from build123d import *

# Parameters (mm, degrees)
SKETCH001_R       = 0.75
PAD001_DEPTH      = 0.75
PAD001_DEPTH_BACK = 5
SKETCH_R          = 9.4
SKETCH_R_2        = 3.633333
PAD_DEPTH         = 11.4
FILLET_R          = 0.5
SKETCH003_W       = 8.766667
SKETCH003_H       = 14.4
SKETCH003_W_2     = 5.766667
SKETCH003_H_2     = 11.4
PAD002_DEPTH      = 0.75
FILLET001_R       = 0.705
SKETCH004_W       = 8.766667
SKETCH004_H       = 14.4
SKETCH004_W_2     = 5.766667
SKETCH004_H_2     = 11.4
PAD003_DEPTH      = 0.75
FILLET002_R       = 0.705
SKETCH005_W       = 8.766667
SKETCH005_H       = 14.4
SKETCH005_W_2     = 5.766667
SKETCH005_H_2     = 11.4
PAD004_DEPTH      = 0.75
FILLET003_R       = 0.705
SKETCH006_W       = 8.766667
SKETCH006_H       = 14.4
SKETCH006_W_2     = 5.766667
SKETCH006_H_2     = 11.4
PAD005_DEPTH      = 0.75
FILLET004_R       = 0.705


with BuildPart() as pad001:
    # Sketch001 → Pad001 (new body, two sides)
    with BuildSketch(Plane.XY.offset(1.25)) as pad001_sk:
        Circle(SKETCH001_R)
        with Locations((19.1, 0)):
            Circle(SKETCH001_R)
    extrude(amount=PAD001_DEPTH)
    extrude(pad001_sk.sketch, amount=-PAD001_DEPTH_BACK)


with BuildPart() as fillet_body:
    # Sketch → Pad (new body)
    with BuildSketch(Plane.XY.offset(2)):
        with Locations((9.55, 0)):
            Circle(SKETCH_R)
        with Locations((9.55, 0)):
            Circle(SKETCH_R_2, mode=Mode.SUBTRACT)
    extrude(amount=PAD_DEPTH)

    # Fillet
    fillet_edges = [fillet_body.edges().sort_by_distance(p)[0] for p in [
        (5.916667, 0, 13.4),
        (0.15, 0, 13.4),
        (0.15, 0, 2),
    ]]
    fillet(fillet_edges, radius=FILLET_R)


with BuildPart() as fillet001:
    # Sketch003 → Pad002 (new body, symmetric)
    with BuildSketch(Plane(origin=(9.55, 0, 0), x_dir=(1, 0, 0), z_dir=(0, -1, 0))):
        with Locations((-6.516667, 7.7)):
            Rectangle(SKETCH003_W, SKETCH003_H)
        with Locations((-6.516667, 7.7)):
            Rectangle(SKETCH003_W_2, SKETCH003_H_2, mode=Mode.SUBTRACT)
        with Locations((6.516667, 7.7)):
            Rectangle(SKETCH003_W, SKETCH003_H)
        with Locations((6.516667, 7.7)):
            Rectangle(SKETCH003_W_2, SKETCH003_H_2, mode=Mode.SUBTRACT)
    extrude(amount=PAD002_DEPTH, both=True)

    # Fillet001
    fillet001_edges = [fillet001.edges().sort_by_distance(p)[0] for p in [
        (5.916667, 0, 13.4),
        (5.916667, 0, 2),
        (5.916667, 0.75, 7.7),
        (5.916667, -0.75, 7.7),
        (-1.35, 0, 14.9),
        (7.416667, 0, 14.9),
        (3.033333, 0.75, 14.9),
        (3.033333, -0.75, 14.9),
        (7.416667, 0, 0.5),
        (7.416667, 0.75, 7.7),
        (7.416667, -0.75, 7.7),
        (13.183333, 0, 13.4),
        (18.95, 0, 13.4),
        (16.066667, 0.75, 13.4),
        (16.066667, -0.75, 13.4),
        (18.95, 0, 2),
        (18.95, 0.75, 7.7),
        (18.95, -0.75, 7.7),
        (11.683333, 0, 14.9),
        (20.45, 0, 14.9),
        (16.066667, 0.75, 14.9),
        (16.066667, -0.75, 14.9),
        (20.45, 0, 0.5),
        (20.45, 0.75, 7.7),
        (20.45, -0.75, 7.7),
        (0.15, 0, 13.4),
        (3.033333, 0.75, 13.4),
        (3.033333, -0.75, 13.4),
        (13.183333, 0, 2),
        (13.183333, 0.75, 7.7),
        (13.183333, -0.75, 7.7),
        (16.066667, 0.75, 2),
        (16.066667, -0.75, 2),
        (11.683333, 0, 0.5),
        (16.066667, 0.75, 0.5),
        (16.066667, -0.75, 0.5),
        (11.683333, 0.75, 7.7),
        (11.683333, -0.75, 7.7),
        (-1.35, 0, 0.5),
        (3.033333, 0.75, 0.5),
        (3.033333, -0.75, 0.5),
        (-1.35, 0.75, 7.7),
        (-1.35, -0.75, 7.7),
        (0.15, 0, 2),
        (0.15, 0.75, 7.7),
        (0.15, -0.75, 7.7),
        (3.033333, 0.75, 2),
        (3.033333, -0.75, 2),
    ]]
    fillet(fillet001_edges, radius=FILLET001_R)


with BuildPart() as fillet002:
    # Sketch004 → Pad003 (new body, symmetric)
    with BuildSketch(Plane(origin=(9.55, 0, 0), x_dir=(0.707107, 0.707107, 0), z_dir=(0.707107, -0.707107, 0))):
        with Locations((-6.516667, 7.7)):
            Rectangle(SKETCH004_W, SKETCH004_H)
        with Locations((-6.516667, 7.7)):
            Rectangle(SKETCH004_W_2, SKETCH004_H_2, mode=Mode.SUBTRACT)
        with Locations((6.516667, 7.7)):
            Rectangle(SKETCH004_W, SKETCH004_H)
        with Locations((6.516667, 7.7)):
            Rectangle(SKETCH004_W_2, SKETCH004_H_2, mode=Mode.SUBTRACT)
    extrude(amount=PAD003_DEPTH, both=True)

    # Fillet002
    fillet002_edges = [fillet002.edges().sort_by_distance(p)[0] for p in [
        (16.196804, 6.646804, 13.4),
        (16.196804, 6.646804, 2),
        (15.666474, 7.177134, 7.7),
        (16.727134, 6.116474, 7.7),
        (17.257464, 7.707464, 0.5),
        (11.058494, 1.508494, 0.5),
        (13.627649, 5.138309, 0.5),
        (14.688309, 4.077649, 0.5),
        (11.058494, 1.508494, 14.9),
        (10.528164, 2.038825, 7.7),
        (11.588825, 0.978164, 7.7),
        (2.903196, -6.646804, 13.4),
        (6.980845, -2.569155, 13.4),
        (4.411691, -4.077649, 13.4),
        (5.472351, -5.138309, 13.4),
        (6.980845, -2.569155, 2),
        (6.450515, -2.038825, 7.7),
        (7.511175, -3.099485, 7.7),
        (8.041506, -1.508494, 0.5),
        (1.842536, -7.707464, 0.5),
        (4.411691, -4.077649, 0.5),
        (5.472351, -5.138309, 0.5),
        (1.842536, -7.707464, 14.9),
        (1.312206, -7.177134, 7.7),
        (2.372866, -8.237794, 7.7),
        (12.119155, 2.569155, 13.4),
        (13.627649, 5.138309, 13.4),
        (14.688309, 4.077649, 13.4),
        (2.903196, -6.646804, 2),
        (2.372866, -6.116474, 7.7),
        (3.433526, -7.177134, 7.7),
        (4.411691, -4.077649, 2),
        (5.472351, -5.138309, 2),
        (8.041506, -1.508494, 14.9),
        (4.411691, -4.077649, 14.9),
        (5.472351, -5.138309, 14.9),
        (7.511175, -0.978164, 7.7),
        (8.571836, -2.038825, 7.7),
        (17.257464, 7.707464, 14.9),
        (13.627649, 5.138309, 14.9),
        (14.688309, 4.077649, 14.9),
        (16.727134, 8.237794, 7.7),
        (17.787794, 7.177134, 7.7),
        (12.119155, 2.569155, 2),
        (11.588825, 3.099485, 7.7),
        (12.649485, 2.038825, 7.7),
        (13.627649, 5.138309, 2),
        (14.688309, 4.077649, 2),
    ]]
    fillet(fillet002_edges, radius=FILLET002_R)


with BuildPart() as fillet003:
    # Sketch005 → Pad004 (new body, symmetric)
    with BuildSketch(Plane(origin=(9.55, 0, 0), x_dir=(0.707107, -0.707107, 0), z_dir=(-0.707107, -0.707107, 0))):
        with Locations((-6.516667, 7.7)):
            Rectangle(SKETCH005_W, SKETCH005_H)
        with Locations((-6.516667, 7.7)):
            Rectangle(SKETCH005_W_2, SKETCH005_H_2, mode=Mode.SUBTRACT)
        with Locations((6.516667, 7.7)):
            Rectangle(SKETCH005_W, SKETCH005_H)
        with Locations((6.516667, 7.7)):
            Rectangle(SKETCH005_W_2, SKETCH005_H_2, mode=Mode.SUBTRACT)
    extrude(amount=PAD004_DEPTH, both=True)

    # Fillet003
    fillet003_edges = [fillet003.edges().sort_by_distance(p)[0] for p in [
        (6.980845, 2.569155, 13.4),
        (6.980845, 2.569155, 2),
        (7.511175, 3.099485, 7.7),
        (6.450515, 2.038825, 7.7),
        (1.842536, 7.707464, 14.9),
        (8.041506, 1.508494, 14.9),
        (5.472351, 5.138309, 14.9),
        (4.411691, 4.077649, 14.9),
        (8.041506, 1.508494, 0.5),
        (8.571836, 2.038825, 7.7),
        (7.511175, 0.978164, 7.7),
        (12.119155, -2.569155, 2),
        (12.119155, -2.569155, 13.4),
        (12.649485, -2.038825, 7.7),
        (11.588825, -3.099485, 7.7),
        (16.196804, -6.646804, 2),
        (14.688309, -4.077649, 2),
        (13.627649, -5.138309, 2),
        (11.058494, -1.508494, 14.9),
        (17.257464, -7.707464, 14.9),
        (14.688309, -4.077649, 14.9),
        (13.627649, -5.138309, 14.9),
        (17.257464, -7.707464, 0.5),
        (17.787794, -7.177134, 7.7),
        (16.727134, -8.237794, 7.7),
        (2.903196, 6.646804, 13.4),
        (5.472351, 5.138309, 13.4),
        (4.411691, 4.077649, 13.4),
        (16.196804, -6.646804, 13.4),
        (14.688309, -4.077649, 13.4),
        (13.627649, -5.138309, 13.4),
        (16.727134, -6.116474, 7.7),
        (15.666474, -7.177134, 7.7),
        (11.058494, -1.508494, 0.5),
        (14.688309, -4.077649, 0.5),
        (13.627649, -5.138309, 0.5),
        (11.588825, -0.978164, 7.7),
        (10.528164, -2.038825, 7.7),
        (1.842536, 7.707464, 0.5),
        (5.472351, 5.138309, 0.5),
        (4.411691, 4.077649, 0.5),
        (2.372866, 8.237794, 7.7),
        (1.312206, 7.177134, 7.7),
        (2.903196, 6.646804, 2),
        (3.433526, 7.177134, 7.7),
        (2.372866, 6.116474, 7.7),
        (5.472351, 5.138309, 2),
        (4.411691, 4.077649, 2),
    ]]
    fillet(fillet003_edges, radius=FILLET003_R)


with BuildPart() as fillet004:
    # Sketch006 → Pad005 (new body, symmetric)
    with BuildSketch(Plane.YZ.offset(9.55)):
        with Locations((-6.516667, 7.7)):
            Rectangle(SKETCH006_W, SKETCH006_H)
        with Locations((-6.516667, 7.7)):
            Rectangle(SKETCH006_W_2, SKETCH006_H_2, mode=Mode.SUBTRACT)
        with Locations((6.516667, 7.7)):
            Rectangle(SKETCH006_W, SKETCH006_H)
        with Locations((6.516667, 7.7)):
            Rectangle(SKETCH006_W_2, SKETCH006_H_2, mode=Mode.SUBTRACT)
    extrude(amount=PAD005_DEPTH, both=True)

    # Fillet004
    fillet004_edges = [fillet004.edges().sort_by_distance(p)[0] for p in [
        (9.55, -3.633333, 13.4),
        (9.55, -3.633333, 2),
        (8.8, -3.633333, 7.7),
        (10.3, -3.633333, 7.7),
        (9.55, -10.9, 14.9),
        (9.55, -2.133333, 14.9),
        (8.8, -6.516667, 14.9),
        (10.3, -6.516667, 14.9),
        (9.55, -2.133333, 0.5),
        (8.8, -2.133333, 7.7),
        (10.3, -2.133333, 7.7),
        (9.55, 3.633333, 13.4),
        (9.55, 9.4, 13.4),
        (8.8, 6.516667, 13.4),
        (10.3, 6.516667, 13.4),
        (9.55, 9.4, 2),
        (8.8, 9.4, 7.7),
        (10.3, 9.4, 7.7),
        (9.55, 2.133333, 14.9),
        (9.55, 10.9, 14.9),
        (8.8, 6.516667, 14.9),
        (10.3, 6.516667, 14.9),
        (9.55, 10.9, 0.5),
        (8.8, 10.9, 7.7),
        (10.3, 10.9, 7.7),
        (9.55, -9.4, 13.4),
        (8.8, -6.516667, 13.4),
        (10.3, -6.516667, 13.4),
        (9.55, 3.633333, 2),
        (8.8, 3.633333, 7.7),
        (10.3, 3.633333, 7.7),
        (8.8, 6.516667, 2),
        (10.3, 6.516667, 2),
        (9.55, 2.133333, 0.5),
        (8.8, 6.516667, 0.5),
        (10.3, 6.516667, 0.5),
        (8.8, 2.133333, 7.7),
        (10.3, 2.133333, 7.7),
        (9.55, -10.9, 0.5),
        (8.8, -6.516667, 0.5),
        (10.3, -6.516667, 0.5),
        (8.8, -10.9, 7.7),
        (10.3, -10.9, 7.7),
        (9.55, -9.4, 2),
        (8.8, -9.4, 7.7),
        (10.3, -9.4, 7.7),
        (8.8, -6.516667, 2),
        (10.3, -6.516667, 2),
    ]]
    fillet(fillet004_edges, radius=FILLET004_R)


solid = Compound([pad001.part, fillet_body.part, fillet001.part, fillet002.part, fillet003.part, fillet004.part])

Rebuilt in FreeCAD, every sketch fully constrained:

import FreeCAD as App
import Part
import Sketcher

V = App.Vector
Q = App.Units.Quantity


def edges_at(feature, points):
    """Names of the edges that pass closest to the given points."""
    edges = feature.Shape.Edges
    near = lambda p: min(range(len(edges)), key=lambda i: edges[i].distToShape(Part.Vertex(*p))[0])
    return sorted({f"Edge{near(p) + 1}" for p in points})


def add_polygon(sketch, points):
    """Adds a closed chain of lines whose ends are joined by coincident constraints."""
    first, n = sketch.GeometryCount, len(points)
    for a, b in zip(points, points[1:] + points[:1]):
        sketch.addGeometry(Part.LineSegment(App.Vector(*a, 0), App.Vector(*b, 0)), False)
    for i in range(n):
        sketch.addConstraint(Sketcher.Constraint("Coincident", first + i, 2, first + (i + 1) % n, 1))

doc = App.newDocument("Part")
body = doc.addObject("PartDesign::Body", "Body")
body.AllowCompound = True

sketch1 = doc.addObject("Sketcher::SketchObject", "Sketch")
body.addObject(sketch1)
sketch1.AttachmentSupport = (doc.XY_Plane, [""])
sketch1.MapMode = "FlatFace"
sketch1.AttachmentOffset = App.Placement(V(0, 0, 1.25), App.Rotation())
sketch1.addGeometry(Part.Circle(V(0, 0, 0), V(0, 0, 1), 0.8), False)
sketch1.addGeometry(Part.Circle(V(19.1, 0, 0), V(0, 0, 1), 0.8), False)
sketch1.addConstraint(Sketcher.Constraint("Coincident", 0, 3, -1, 1))
sketch1.addConstraint(Sketcher.Constraint("Equal", 0, 1))
sketch1.addConstraint(Sketcher.Constraint("PointOnObject", 1, 3, -1))
sketch1.addConstraint(Sketcher.Constraint("Diameter", 0, Q("1.5 mm")))
sketch1.addConstraint(Sketcher.Constraint("DistanceX", -1, 1, 1, 3, Q("19.1 mm")))
pad1 = doc.addObject("PartDesign::Pad", "Pad")
body.addObject(pad1)
pad1.Profile = sketch1
pad1.Type = "TwoLengths"
pad1.Length = 0.75
pad1.Length2 = 5
body2 = doc.addObject("PartDesign::Body", "Body001")

sketch2 = doc.addObject("Sketcher::SketchObject", "Sketch001")
body2.addObject(sketch2)
sketch2.AttachmentSupport = (doc.getObject("XY_Plane001"), [""])
sketch2.MapMode = "FlatFace"
sketch2.AttachmentOffset = App.Placement(V(0, 0, 2), App.Rotation())
sketch2.addGeometry(Part.Circle(V(9.6, 0, 0), V(0, 0, 1), 9.4), False)
sketch2.addGeometry(Part.Circle(V(9.6, 0, 0), V(0, 0, 1), 3.6), False)
sketch2.addConstraint(Sketcher.Constraint("Coincident", 1, 3, 0, 3))
sketch2.addConstraint(Sketcher.Constraint("PointOnObject", 0, 3, -1))
sketch2.addConstraint(Sketcher.Constraint("Diameter", 0, Q("18.8 mm")))
sketch2.addConstraint(Sketcher.Constraint("DistanceX", -1, 1, 0, 3, Q("9.55 mm")))
sketch2.addConstraint(Sketcher.Constraint("Diameter", 1, Q("7.266666 mm")))
pad2 = doc.addObject("PartDesign::Pad", "Pad001")
body2.addObject(pad2)
pad2.Profile = sketch2
pad2.Length = 11.4
doc.recompute()

fillet = doc.addObject("PartDesign::Fillet", "Fillet")
body2.addObject(fillet)
fillet.Base = (pad2, edges_at(pad2, [(5.917, 0, 13.4), (0.15, 0, 13.4), (0.15, 0, 2)]))
fillet.Radius = 0.5
body3 = doc.addObject("PartDesign::Body", "Body002")
body3.AllowCompound = True

sketch3 = doc.addObject("Sketcher::SketchObject", "Sketch002")
body3.addObject(sketch3)
sketch3.AttachmentSupport = (doc.getObject("XZ_Plane002"), [""])
sketch3.MapMode = "FlatFace"
add_polygon(sketch3, [(-1, 15), (-1, 0), (7, 0), (7, 15)])
add_polygon(sketch3, [(6, 2), (0, 2), (0, 13), (6, 13)])
add_polygon(sketch3, [(12, 15), (12, 0), (20, 0), (20, 15)])
add_polygon(sketch3, [(19, 2), (13, 2), (13, 13), (19, 13)])
sketch3.addConstraint(Sketcher.Constraint("Vertical", 0))
sketch3.addConstraint(Sketcher.Constraint("Horizontal", 1))
sketch3.addConstraint(Sketcher.Constraint("Vertical", 2))
sketch3.addConstraint(Sketcher.Constraint("Horizontal", 3))
sketch3.addConstraint(Sketcher.Constraint("Horizontal", 4))
sketch3.addConstraint(Sketcher.Constraint("Vertical", 5))
sketch3.addConstraint(Sketcher.Constraint("Horizontal", 6))
sketch3.addConstraint(Sketcher.Constraint("Vertical", 7))
sketch3.addConstraint(Sketcher.Constraint("Vertical", 8))
sketch3.addConstraint(Sketcher.Constraint("Horizontal", 9))
sketch3.addConstraint(Sketcher.Constraint("Vertical", 10))
sketch3.addConstraint(Sketcher.Constraint("Horizontal", 11))
sketch3.addConstraint(Sketcher.Constraint("Horizontal", 12))
sketch3.addConstraint(Sketcher.Constraint("Vertical", 13))
sketch3.addConstraint(Sketcher.Constraint("Horizontal", 14))
sketch3.addConstraint(Sketcher.Constraint("Vertical", 15))
sketch3.addConstraint(Sketcher.Constraint("Horizontal", 1, 2, 8, 2))
sketch3.addConstraint(Sketcher.Constraint("Horizontal", 3, 2, 10, 2))
sketch3.addConstraint(Sketcher.Constraint("Horizontal", 7, 2, 12, 2))
sketch3.addConstraint(Sketcher.Constraint("Horizontal", 6, 2, 13, 2))
sketch3.addConstraint(Sketcher.Constraint("Equal", 3, 9))
sketch3.addConstraint(Sketcher.Constraint("Equal", 6, 12))
sketch3.addConstraint(Sketcher.Constraint("DistanceY", 0, 2, 0, 1, Q("14.4 mm")))
sketch3.addConstraint(Sketcher.Constraint("DistanceY", 5, 1, 5, 2, Q("11.4 mm")))
sketch3.addConstraint(Sketcher.Constraint("DistanceY", -1, 1, 4, 2, Q("2 mm")))
sketch3.addConstraint(Sketcher.Constraint("DistanceY", -1, 1, 0, 2, Q("0.5 mm")))
sketch3.addConstraint(Sketcher.Constraint("DistanceX", 0, 2, 4, 2, Q("1.5 mm")))
sketch3.addConstraint(Sketcher.Constraint("DistanceX", 6, 2, 2, 2, Q("1.5 mm")))
sketch3.addConstraint(Sketcher.Constraint("DistanceX", 8, 2, 12, 2, Q("1.5 mm")))
sketch3.addConstraint(Sketcher.Constraint("DistanceX", 0, 2, -1, 1, Q("1.35 mm")))
sketch3.addConstraint(Sketcher.Constraint("DistanceX", -1, 1, 9, 2, Q("20.450001 mm")))
sketch3.addConstraint(Sketcher.Constraint("DistanceX", 1, 1, 1, 2, Q("8.766667 mm")))
pad3 = doc.addObject("PartDesign::Pad", "Pad002")
body3.addObject(pad3)
pad3.Profile = sketch3
pad3.Length = 1.5
pad3.Midplane = True
doc.recompute()

fillet2 = doc.addObject("PartDesign::Fillet", "Fillet001")
body3.addObject(fillet2)
fillet2.Base = (pad3, ["Edge1"])
fillet2.UseAllEdges = True
fillet2.Radius = 0.705
body4 = doc.addObject("PartDesign::Body", "Body003")
body4.AllowCompound = True

sketch4 = doc.addObject("Sketcher::SketchObject", "Sketch003")
body4.addObject(sketch4)
sketch4.Placement = App.Placement(V(9.55, 0, 0), App.Rotation(V(0.707106781, 0.707106781, 0), V(0, 0, 0.999999999), V(0.707106781, -0.707106781, 0), "ZXY"))
add_polygon(sketch4, [(-11, 15), (-11, 0), (-2, 0), (-2, 15)])
add_polygon(sketch4, [(-4, 2), (-9, 2), (-9, 13), (-4, 13)])
add_polygon(sketch4, [(2, 15), (2, 0), (11, 0), (11, 15)])
add_polygon(sketch4, [(9, 2), (4, 2), (4, 13), (9, 13)])
sketch4.addConstraint(Sketcher.Constraint("Vertical", 0))
sketch4.addConstraint(Sketcher.Constraint("Horizontal", 1))
sketch4.addConstraint(Sketcher.Constraint("Vertical", 2))
sketch4.addConstraint(Sketcher.Constraint("Horizontal", 3))
sketch4.addConstraint(Sketcher.Constraint("Horizontal", 4))
sketch4.addConstraint(Sketcher.Constraint("Vertical", 5))
sketch4.addConstraint(Sketcher.Constraint("Horizontal", 6))
sketch4.addConstraint(Sketcher.Constraint("Vertical", 7))
sketch4.addConstraint(Sketcher.Constraint("Vertical", 8))
sketch4.addConstraint(Sketcher.Constraint("Horizontal", 9))
sketch4.addConstraint(Sketcher.Constraint("Vertical", 10))
sketch4.addConstraint(Sketcher.Constraint("Horizontal", 11))
sketch4.addConstraint(Sketcher.Constraint("Horizontal", 12))
sketch4.addConstraint(Sketcher.Constraint("Vertical", 13))
sketch4.addConstraint(Sketcher.Constraint("Horizontal", 14))
sketch4.addConstraint(Sketcher.Constraint("Vertical", 15))
sketch4.addConstraint(Sketcher.Constraint("Symmetric", 1, 2, 8, 2, -2))
sketch4.addConstraint(Sketcher.Constraint("Symmetric", 3, 2, 10, 2, -2))
sketch4.addConstraint(Sketcher.Constraint("Symmetric", 7, 2, 12, 2, -2))
sketch4.addConstraint(Sketcher.Constraint("Symmetric", 5, 2, 14, 2, -2))
sketch4.addConstraint(Sketcher.Constraint("DistanceY", 0, 2, 0, 1, Q("14.4 mm")))
sketch4.addConstraint(Sketcher.Constraint("DistanceY", 5, 1, 5, 2, Q("11.4 mm")))
sketch4.addConstraint(Sketcher.Constraint("DistanceY", -1, 1, 4, 2, Q("2 mm")))
sketch4.addConstraint(Sketcher.Constraint("DistanceX", 0, 2, -1, 1, Q("10.9 mm")))
sketch4.addConstraint(Sketcher.Constraint("DistanceY", -1, 1, 0, 2, Q("0.5 mm")))
sketch4.addConstraint(Sketcher.Constraint("DistanceX", 4, 2, -1, 1, Q("9.4 mm")))
sketch4.addConstraint(Sketcher.Constraint("DistanceX", 6, 2, 2, 2, Q("1.5 mm")))
sketch4.addConstraint(Sketcher.Constraint("DistanceX", 1, 1, 1, 2, Q("8.766667 mm")))
pad4 = doc.addObject("PartDesign::Pad", "Pad003")
body4.addObject(pad4)
pad4.Profile = sketch4
pad4.Length = 1.5
pad4.Midplane = True
doc.recompute()

fillet3 = doc.addObject("PartDesign::Fillet", "Fillet002")
body4.addObject(fillet3)
fillet3.Base = (pad4, ["Edge1"])
fillet3.UseAllEdges = True
fillet3.Radius = 0.705
body5 = doc.addObject("PartDesign::Body", "Body004")
body5.AllowCompound = True

sketch5 = doc.addObject("Sketcher::SketchObject", "Sketch004")
body5.addObject(sketch5)
sketch5.Placement = App.Placement(V(9.55, 0, 0), App.Rotation(V(0.707106781, -0.707106781, 0), V(0, 0, 0.999999999), V(-0.707106781, -0.707106781, 0), "ZXY"))
add_polygon(sketch5, [(-11, 15), (-11, 0), (-2, 0), (-2, 15)])
add_polygon(sketch5, [(-4, 2), (-9, 2), (-9, 13), (-4, 13)])
add_polygon(sketch5, [(2, 15), (2, 0), (11, 0), (11, 15)])
add_polygon(sketch5, [(9, 2), (4, 2), (4, 13), (9, 13)])
sketch5.addConstraint(Sketcher.Constraint("Vertical", 0))
sketch5.addConstraint(Sketcher.Constraint("Horizontal", 1))
sketch5.addConstraint(Sketcher.Constraint("Vertical", 2))
sketch5.addConstraint(Sketcher.Constraint("Horizontal", 3))
sketch5.addConstraint(Sketcher.Constraint("Horizontal", 4))
sketch5.addConstraint(Sketcher.Constraint("Vertical", 5))
sketch5.addConstraint(Sketcher.Constraint("Horizontal", 6))
sketch5.addConstraint(Sketcher.Constraint("Vertical", 7))
sketch5.addConstraint(Sketcher.Constraint("Vertical", 8))
sketch5.addConstraint(Sketcher.Constraint("Horizontal", 9))
sketch5.addConstraint(Sketcher.Constraint("Vertical", 10))
sketch5.addConstraint(Sketcher.Constraint("Horizontal", 11))
sketch5.addConstraint(Sketcher.Constraint("Horizontal", 12))
sketch5.addConstraint(Sketcher.Constraint("Vertical", 13))
sketch5.addConstraint(Sketcher.Constraint("Horizontal", 14))
sketch5.addConstraint(Sketcher.Constraint("Vertical", 15))
sketch5.addConstraint(Sketcher.Constraint("Symmetric", 1, 2, 8, 2, -2))
sketch5.addConstraint(Sketcher.Constraint("Symmetric", 3, 2, 10, 2, -2))
sketch5.addConstraint(Sketcher.Constraint("Symmetric", 7, 2, 12, 2, -2))
sketch5.addConstraint(Sketcher.Constraint("Symmetric", 5, 2, 14, 2, -2))
sketch5.addConstraint(Sketcher.Constraint("DistanceY", 0, 2, 0, 1, Q("14.4 mm")))
sketch5.addConstraint(Sketcher.Constraint("DistanceY", 5, 1, 5, 2, Q("11.4 mm")))
sketch5.addConstraint(Sketcher.Constraint("DistanceY", -1, 1, 4, 2, Q("2 mm")))
sketch5.addConstraint(Sketcher.Constraint("DistanceX", 0, 2, -1, 1, Q("10.9 mm")))
sketch5.addConstraint(Sketcher.Constraint("DistanceY", -1, 1, 0, 2, Q("0.5 mm")))
sketch5.addConstraint(Sketcher.Constraint("DistanceX", 4, 2, -1, 1, Q("9.4 mm")))
sketch5.addConstraint(Sketcher.Constraint("DistanceX", 6, 2, 2, 2, Q("1.5 mm")))
sketch5.addConstraint(Sketcher.Constraint("DistanceX", 1, 1, 1, 2, Q("8.766667 mm")))
pad5 = doc.addObject("PartDesign::Pad", "Pad004")
body5.addObject(pad5)
pad5.Profile = sketch5
pad5.Length = 1.5
pad5.Midplane = True
doc.recompute()

fillet4 = doc.addObject("PartDesign::Fillet", "Fillet003")
body5.addObject(fillet4)
fillet4.Base = (pad5, ["Edge1"])
fillet4.UseAllEdges = True
fillet4.Radius = 0.705
body6 = doc.addObject("PartDesign::Body", "Body005")
body6.AllowCompound = True

sketch6 = doc.addObject("Sketcher::SketchObject", "Sketch005")
body6.addObject(sketch6)
sketch6.AttachmentSupport = (doc.getObject("YZ_Plane005"), [""])
sketch6.MapMode = "FlatFace"
sketch6.AttachmentOffset = App.Placement(V(0, 0, 9.55), App.Rotation())
add_polygon(sketch6, [(-11, 15), (-11, 0), (-2, 0), (-2, 15)])
add_polygon(sketch6, [(-4, 2), (-9, 2), (-9, 13), (-4, 13)])
add_polygon(sketch6, [(2, 15), (2, 0), (11, 0), (11, 15)])
add_polygon(sketch6, [(9, 2), (4, 2), (4, 13), (9, 13)])
sketch6.addConstraint(Sketcher.Constraint("Vertical", 0))
sketch6.addConstraint(Sketcher.Constraint("Horizontal", 1))
sketch6.addConstraint(Sketcher.Constraint("Vertical", 2))
sketch6.addConstraint(Sketcher.Constraint("Horizontal", 3))
sketch6.addConstraint(Sketcher.Constraint("Horizontal", 4))
sketch6.addConstraint(Sketcher.Constraint("Vertical", 5))
sketch6.addConstraint(Sketcher.Constraint("Horizontal", 6))
sketch6.addConstraint(Sketcher.Constraint("Vertical", 7))
sketch6.addConstraint(Sketcher.Constraint("Vertical", 8))
sketch6.addConstraint(Sketcher.Constraint("Horizontal", 9))
sketch6.addConstraint(Sketcher.Constraint("Vertical", 10))
sketch6.addConstraint(Sketcher.Constraint("Horizontal", 11))
sketch6.addConstraint(Sketcher.Constraint("Horizontal", 12))
sketch6.addConstraint(Sketcher.Constraint("Vertical", 13))
sketch6.addConstraint(Sketcher.Constraint("Horizontal", 14))
sketch6.addConstraint(Sketcher.Constraint("Vertical", 15))
sketch6.addConstraint(Sketcher.Constraint("Symmetric", 1, 2, 8, 2, -2))
sketch6.addConstraint(Sketcher.Constraint("Symmetric", 3, 2, 10, 2, -2))
sketch6.addConstraint(Sketcher.Constraint("Symmetric", 7, 2, 12, 2, -2))
sketch6.addConstraint(Sketcher.Constraint("Symmetric", 5, 2, 14, 2, -2))
sketch6.addConstraint(Sketcher.Constraint("DistanceY", 0, 2, 0, 1, Q("14.4 mm")))
sketch6.addConstraint(Sketcher.Constraint("DistanceY", 5, 1, 5, 2, Q("11.4 mm")))
sketch6.addConstraint(Sketcher.Constraint("DistanceY", -1, 1, 4, 2, Q("2 mm")))
sketch6.addConstraint(Sketcher.Constraint("DistanceX", 0, 2, -1, 1, Q("10.900001 mm")))
sketch6.addConstraint(Sketcher.Constraint("DistanceY", -1, 1, 0, 2, Q("0.5 mm")))
sketch6.addConstraint(Sketcher.Constraint("DistanceX", 4, 2, -1, 1, Q("9.400001 mm")))
sketch6.addConstraint(Sketcher.Constraint("DistanceX", 6, 2, 2, 2, Q("1.5 mm")))
sketch6.addConstraint(Sketcher.Constraint("DistanceX", 1, 1, 1, 2, Q("8.766667 mm")))
pad6 = doc.addObject("PartDesign::Pad", "Pad005")
body6.addObject(pad6)
pad6.Profile = sketch6
pad6.Length = 1.5
pad6.Midplane = True
doc.recompute()

fillet5 = doc.addObject("PartDesign::Fillet", "Fillet004")
body6.addObject(fillet5)
fillet5.Base = (pad6, ["Edge1"])
fillet5.UseAllEdges = True
fillet5.Radius = 0.705

doc.recompute()
